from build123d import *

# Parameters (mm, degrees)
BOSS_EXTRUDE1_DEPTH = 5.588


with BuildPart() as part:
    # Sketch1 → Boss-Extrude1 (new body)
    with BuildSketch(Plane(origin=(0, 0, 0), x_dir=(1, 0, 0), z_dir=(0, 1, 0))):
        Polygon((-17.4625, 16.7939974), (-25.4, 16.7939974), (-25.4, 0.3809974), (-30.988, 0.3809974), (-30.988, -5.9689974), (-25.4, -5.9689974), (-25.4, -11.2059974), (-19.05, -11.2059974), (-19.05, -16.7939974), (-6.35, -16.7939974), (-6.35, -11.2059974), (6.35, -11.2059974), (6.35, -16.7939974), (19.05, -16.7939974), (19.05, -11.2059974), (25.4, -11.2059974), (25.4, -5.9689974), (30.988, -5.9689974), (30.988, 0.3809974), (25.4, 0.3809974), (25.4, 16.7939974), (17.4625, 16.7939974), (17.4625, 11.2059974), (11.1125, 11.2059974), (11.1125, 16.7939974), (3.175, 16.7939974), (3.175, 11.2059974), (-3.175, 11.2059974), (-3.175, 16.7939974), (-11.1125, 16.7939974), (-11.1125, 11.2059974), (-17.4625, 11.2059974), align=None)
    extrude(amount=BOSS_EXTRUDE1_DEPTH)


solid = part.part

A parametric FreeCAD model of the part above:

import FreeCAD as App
import Part
import Sketcher
from FreeCAD import Vector
Q = App.Units.Quantity

doc = App.newDocument("Part")
params = doc.addObject("Spreadsheet::Sheet", "Params")
for row, (alias, value) in enumerate([
    ("sketch1_width", "0.5 in"),
    ("sketch1_width2", "0.22 in"),
    ("pad1_length", "0.22 in"),
], start=1):
    params.set(f"A{row}", alias)
    params.set(f"B{row}", "=" + value)
    params.setAlias(f"B{row}", alias)

body = doc.addObject("PartDesign::Body", "Body")

# Sketch on XZ plane
sketch1 = doc.addObject("Sketcher::SketchObject", "Sketch")
body.addObject(sketch1)
sketch1.AttachmentSupport = (doc.XZ_Plane, [""])
sketch1.MapMode = "FlatFace"
sketch1.addGeometry([
    Part.LineSegment(Vector(-17.4625, -16.793997, 0), Vector(-25.4, -16.793997, 0)),  # 0
    Part.LineSegment(Vector(-25.4, -16.793997, 0), Vector(-25.4, -0.380997, 0)),  # 1
    Part.LineSegment(Vector(-25.4, -0.380997, 0), Vector(-30.988, -0.380997, 0)),  # 2
    Part.LineSegment(Vector(-30.988, -0.380997, 0), Vector(-30.988, 5.968997, 0)),  # 3
    Part.LineSegment(Vector(-30.988, 5.968997, 0), Vector(-25.4, 5.968997, 0)),  # 4
    Part.LineSegment(Vector(-25.4, 5.968997, 0), Vector(-25.4, 11.205997, 0)),  # 5
    Part.LineSegment(Vector(-25.4, 11.205997, 0), Vector(-19.05, 11.205997, 0)),  # 6
    Part.LineSegment(Vector(-19.05, 11.205997, 0), Vector(-19.05, 16.793997, 0)),  # 7
    Part.LineSegment(Vector(-19.05, 16.793997, 0), Vector(-6.35, 16.793997, 0)),  # 8
    Part.LineSegment(Vector(-6.35, 16.793997, 0), Vector(-6.35, 11.205997, 0)),  # 9
    Part.LineSegment(Vector(-6.35, 11.205997, 0), Vector(6.35, 11.205997, 0)),  # 10
    Part.LineSegment(Vector(6.35, 11.205997, 0), Vector(6.35, 16.793997, 0)),  # 11
    Part.LineSegment(Vector(6.35, 16.793997, 0), Vector(19.05, 16.793997, 0)),  # 12
    Part.LineSegment(Vector(19.05, 16.793997, 0), Vector(19.05, 11.205997, 0)),  # 13
    Part.LineSegment(Vector(19.05, 11.205997, 0), Vector(25.4, 11.205997, 0)),  # 14
    Part.LineSegment(Vector(25.4, 11.205997, 0), Vector(25.4, 5.968997, 0)),  # 15
    Part.LineSegment(Vector(25.4, 5.968997, 0), Vector(30.988, 5.968997, 0)),  # 16
    Part.LineSegment(Vector(30.988, 5.968997, 0), Vector(30.988, -0.380997, 0)),  # 17
    Part.LineSegment(Vector(30.988, -0.380997, 0), Vector(25.4, -0.380997, 0)),  # 18
    Part.LineSegment(Vector(25.4, -0.380997, 0), Vector(25.4, -16.793997, 0)),  # 19
    Part.LineSegment(Vector(25.4, -16.793997, 0), Vector(17.4625, -16.793997, 0)),  # 20
    Part.LineSegment(Vector(17.4625, -16.793997, 0), Vector(17.4625, -11.205997, 0)),  # 21
    Part.LineSegment(Vector(17.4625, -11.205997, 0), Vector(11.1125, -11.205997, 0)),  # 22
    Part.LineSegment(Vector(11.1125, -11.205997, 0), Vector(11.1125, -16.793997, 0)),  # 23
    Part.LineSegment(Vector(11.1125, -16.793997, 0), Vector(3.175, -16.793997, 0)),  # 24
    Part.LineSegment(Vector(3.175, -16.793997, 0), Vector(3.175, -11.205997, 0)),  # 25
    Part.LineSegment(Vector(3.175, -11.205997, 0), Vector(-3.175, -11.205997, 0)),  # 26
    Part.LineSegment(Vector(-3.175, -11.205997, 0), Vector(-3.175, -16.793997, 0)),  # 27
    Part.LineSegment(Vector(-3.175, -16.793997, 0), Vector(-11.1125, -16.793997, 0)),  # 28
    Part.LineSegment(Vector(-11.1125, -16.793997, 0), Vector(-11.1125, -11.205997, 0)),  # 29
    Part.LineSegment(Vector(-11.1125, -11.205997, 0), Vector(-17.4625, -11.205997, 0)),  # 30
    Part.LineSegment(Vector(-17.4625, -11.205997, 0), Vector(-17.4625, -16.793997, 0)),  # 31
], False)
sketch1.addConstraint([
    Sketcher.Constraint("Coincident", 0, 2, 1, 1),
    Sketcher.Constraint("Coincident", 1, 2, 2, 1),
    Sketcher.Constraint("Coincident", 2, 2, 3, 1),
    Sketcher.Constraint("Coincident", 3, 2, 4, 1),
    Sketcher.Constraint("Coincident", 4, 2, 5, 1),
    Sketcher.Constraint("Coincident", 5, 2, 6, 1),
    Sketcher.Constraint("Coincident", 6, 2, 7, 1),
    Sketcher.Constraint("Coincident", 7, 2, 8, 1),
    Sketcher.Constraint("Coincident", 8, 2, 9, 1),
    Sketcher.Constraint("Coincident", 9, 2, 10, 1),
    Sketcher.Constraint("Coincident", 10, 2, 11, 1),
    Sketcher.Constraint("Coincident", 11, 2, 12, 1),
    Sketcher.Constraint("Coincident", 12, 2, 13, 1),
    Sketcher.Constraint("Coincident", 13, 2, 14, 1),
    Sketcher.Constraint("Coincident", 14, 2, 15, 1),
    Sketcher.Constraint("Coincident", 15, 2, 16, 1),
    Sketcher.Constraint("Coincident", 16, 2, 17, 1),
    Sketcher.Constraint("Coincident", 17, 2, 18, 1),
    Sketcher.Constraint("Coincident", 18, 2, 19, 1),
    Sketcher.Constraint("Coincident", 19, 2, 20, 1),
    Sketcher.Constraint("Coincident", 20, 2, 21, 1),
    Sketcher.Constraint("Coincident", 21, 2, 22, 1),
    Sketcher.Constraint("Coincident", 22, 2, 23, 1),
    Sketcher.Constraint("Coincident", 23, 2, 24, 1),
    Sketcher.Constraint("Coincident", 24, 2, 25, 1),
    Sketcher.Constraint("Coincident", 25, 2, 26, 1),
    Sketcher.Constraint("Coincident", 26, 2, 27, 1),
    Sketcher.Constraint("Coincident", 27, 2, 28, 1),
    Sketcher.Constraint("Coincident", 28, 2, 29, 1),
    Sketcher.Constraint("Coincident", 29, 2, 30, 1),
    Sketcher.Constraint("Coincident", 30, 2, 31, 1),
    Sketcher.Constraint("Coincident", 31, 2, 0, 1),
    Sketcher.Constraint("Horizontal", 0),
    Sketcher.Constraint("Vertical", 1),
    Sketcher.Constraint("Horizontal", 2),
    Sketcher.Constraint("Vertical", 3),
    Sketcher.Constraint("Horizontal", 4),
    Sketcher.Constraint("Vertical", 5),
    Sketcher.Constraint("Horizontal", 6),
    Sketcher.Constraint("Vertical", 7),
    Sketcher.Constraint("Horizontal", 8),
    Sketcher.Constraint("Vertical", 9),
    Sketcher.Constraint("Horizontal", 10),
    Sketcher.Constraint("Vertical", 11),
    Sketcher.Constraint("Horizontal", 12),
    Sketcher.Constraint("Vertical", 13),
    Sketcher.Constraint("Horizontal", 14),
    Sketcher.Constraint("Vertical", 15),
    Sketcher.Constraint("Horizontal", 16),
    Sketcher.Constraint("Vertical", 17),
    Sketcher.Constraint("Horizontal", 18),
    Sketcher.Constraint("Vertical", 19),
    Sketcher.Constraint("Horizontal", 20),
    Sketcher.Constraint("Vertical", 21),
    Sketcher.Constraint("Horizontal", 22),
    Sketcher.Constraint("Vertical", 23),
    Sketcher.Constraint("Horizontal", 24),
    Sketcher.Constraint("Vertical", 25),
    Sketcher.Constraint("Horizontal", 26),
    Sketcher.Constraint("Vertical", 27),
    Sketcher.Constraint("Horizontal", 28),
    Sketcher.Constraint("Vertical", 29),
    Sketcher.Constraint("Horizontal", 30),
    Sketcher.Constraint("Vertical", 31),
    Sketcher.Constraint("Symmetric", 8, 2, 11, 2, -2),
    Sketcher.Constraint("Symmetric", 6, 2, 13, 2, -2),
    Sketcher.Constraint("Symmetric", 4, 2, 15, 2, -2),
    Sketcher.Constraint("Symmetric", 2, 2, 17, 2, -2),
    Sketcher.Constraint("Symmetric", 0, 2, 19, 2, -2),
    Sketcher.Constraint("Symmetric", 24, 2, 27, 2, -2),
    Sketcher.Constraint("Symmetric", 22, 2, 29, 2, -2),
    Sketcher.Constraint("Horizontal", 6, 2, 9, 2),
    Sketcher.Constraint("Horizontal", 20, 2, 23, 2),
    Sketcher.Constraint("Horizontal", 22, 2, 25, 2),
    Sketcher.Constraint("Vertical", 1, 2, 4, 2),
    Sketcher.Constraint("Equal", 8, 10),
    Sketcher.Constraint("Equal", 0, 20),
    Sketcher.Constraint("Equal", 14, 22),
    Sketcher.Constraint("Equal", 20, 24),
    Sketcher.Constraint("Equal", 22, 26),
    Sketcher.Constraint("Equal", 18, 7),
    Sketcher.Constraint("Equal", 13, 21),
    Sketcher.Constraint("DistanceX", 8, 1, 8, 2, Q("0.5 in")),
    Sketcher.Constraint("DistanceX", 0, 2, -1, 1, Q("1 in")),
    Sketcher.Constraint("DistanceX", 2, 2, 2, 1, Q("0.22 in")),
    Sketcher.Constraint("DistanceY", 1, 2, -1, 1, Q("0.0149999 in")),
    Sketcher.Constraint("DistanceY", -1, 1, 3, 2, Q("0.2349999 in")),
    Sketcher.Constraint("DistanceY", 1, 1, 1, 2, Q("16.413 mm")),
    Sketcher.Constraint("DistanceY", 5, 1, 5, 2, Q("5.237 mm")),
])
sketch1.setExpression("Constraints[82]", "Params.sketch1_width")
sketch1.setExpression("Constraints[84]", "Params.sketch1_width2")
pad1 = doc.addObject("PartDesign::Pad", "Pad")
body.addObject(pad1)
pad1.Profile = sketch1
pad1.setExpression("Length", "Params.pad1_length")
pad1.Reversed = True

doc.recompute()
